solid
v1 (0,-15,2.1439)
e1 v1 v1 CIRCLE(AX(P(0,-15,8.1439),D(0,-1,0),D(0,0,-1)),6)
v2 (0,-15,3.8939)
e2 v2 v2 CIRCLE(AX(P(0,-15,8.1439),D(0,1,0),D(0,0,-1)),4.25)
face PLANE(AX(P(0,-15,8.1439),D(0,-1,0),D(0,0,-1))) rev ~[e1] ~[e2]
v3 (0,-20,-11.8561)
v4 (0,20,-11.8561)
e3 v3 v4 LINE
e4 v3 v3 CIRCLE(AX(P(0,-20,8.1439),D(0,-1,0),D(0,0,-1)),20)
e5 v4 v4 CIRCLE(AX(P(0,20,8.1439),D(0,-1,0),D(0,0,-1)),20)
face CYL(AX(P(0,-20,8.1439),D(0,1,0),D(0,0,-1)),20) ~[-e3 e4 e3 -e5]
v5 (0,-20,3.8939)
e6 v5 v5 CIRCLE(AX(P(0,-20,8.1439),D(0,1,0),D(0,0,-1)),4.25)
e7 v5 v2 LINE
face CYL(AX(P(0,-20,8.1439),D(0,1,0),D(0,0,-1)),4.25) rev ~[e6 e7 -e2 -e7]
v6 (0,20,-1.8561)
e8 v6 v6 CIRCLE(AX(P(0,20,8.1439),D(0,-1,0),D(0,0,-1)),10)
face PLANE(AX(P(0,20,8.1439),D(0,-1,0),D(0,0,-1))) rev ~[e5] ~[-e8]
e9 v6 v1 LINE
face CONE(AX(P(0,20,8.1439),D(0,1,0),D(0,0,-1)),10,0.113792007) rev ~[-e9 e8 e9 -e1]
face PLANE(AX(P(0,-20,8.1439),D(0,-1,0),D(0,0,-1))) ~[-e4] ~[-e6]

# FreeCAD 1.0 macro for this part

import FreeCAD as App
import Part
import Sketcher

doc = App.newDocument("Part")
body = doc.addObject("PartDesign::Body", "Body")

# Sketch on YZ plane
sketch1 = body.newObject("Sketcher::SketchObject", "Sketch")
sketch1.AttachmentSupport = (doc.getObject("YZ_Plane"), [""])
sketch1.MapMode = "FlatFace"
sketch1.addGeometry(Part.LineSegment(App.Vector(-15, 8.1439, 0), App.Vector(-20, 8.1439, 0)), False)
sketch1.addGeometry(Part.LineSegment(App.Vector(-20, 8.1439, 0), App.Vector(-20, -11.8561, 0)), False)
sketch1.addGeometry(Part.LineSegment(App.Vector(-20, -11.8561, 0), App.Vector(20, -11.8561, 0)), False)
sketch1.addGeometry(Part.LineSegment(App.Vector(20, -11.8561, 0), App.Vector(20, -1.8561, 0)), False)
sketch1.addGeometry(Part.LineSegment(App.Vector(20, -1.8561, 0), App.Vector(-15, 2.1439, 0)), False)
sketch1.addGeometry(Part.LineSegment(App.Vector(-15, 2.1439, 0), App.Vector(-15, 8.1439, 0)), False)
sketch1.addGeometry(Part.LineSegment(App.Vector(20, 8.1439, 0), App.Vector(-20, 8.1439, 0)), True)  # axis
sketch1.addConstraint(Sketcher.Constraint("Coincident", 0, 2, 1, 1))
sketch1.addConstraint(Sketcher.Constraint("Coincident", 1, 2, 2, 1))
sketch1.addConstraint(Sketcher.Constraint("Coincident", 2, 2, 3, 1))
sketch1.addConstraint(Sketcher.Constraint("Coincident", 3, 2, 4, 1))
sketch1.addConstraint(Sketcher.Constraint("Coincident", 4, 2, 5, 1))
sketch1.addConstraint(Sketcher.Constraint("Coincident", 5, 2, 0, 1))
sketch1.addConstraint(Sketcher.Constraint("Horizontal", 0))
sketch1.addConstraint(Sketcher.Constraint("Vertical", 1))
sketch1.addConstraint(Sketcher.Constraint("Horizontal", 2))
sketch1.addConstraint(Sketcher.Constraint("Vertical", 3))
sketch1.addConstraint(Sketcher.Constraint("Vertical", 5))
sketch1.addConstraint(Sketcher.Constraint("Horizontal", 6))
sketch1.addConstraint(Sketcher.Constraint("Coincident", 6, 2, 0, 2))
sketch1.addConstraint(Sketcher.Constraint("Vertical", 3, 2, 6, 1))
sketch1.addConstraint(Sketcher.Constraint("DistanceX", 0, 2, 0, 1, 5.0))
sketch1.addConstraint(Sketcher.Constraint("DistanceX", 2, 1, 2, 2, 40.0))
sketch1.addConstraint(Sketcher.Constraint("DistanceY", 1, 2, 1, 1, 20.0))
sketch1.addConstraint(Sketcher.Constraint("DistanceY", 3, 1, 3, 2, 10.0))
sketch1.addConstraint(Sketcher.Constraint("DistanceY", 5, 1, 5, 2, 6.0))
sketch1.addConstraint(Sketcher.Constraint("DistanceX", 0, 2, -1, 1, 20.0))
sketch1.addConstraint(Sketcher.Constraint("DistanceY", -1, 1, 0, 2, 8.144))
revolution = body.newObject("PartDesign::Revolution", "Revolution")
revolution.Profile = sketch1
revolution.ReferenceAxis = (sketch1, ["Axis0"])
revolution.Angle = 360

# Sketch on XZ plane
sketch2 = body.newObject("Sketcher::SketchObject", "Sketch001")
sketch2.AttachmentSupport = (doc.getObject("XZ_Plane"), [""])
sketch2.MapMode = "FlatFace"
sketch2.AttachmentOffset = App.Placement(App.Vector(0, 0, 20), App.Rotation())
sketch2.addGeometry(Part.Circle(App.Vector(0, 8.1439, 0), App.Vector(0, 0, 1), 4.25), False)
sketch2.addConstraint(Sketcher.Constraint("PointOnObject", 0, 3, -2))
sketch2.addConstraint(Sketcher.Constraint("Diameter", 0, 8.5))
sketch2.addConstraint(Sketcher.Constraint("DistanceY", -1, 1, 0, 3, 8.144))
doc.recompute()
hole = body.newObject("PartDesign::Hole", "Hole")
hole.Profile = sketch2
hole.ThreadType = "None"
hole.Diameter = 8.5
hole.DepthType = "ThroughAll"

doc.recompute()
